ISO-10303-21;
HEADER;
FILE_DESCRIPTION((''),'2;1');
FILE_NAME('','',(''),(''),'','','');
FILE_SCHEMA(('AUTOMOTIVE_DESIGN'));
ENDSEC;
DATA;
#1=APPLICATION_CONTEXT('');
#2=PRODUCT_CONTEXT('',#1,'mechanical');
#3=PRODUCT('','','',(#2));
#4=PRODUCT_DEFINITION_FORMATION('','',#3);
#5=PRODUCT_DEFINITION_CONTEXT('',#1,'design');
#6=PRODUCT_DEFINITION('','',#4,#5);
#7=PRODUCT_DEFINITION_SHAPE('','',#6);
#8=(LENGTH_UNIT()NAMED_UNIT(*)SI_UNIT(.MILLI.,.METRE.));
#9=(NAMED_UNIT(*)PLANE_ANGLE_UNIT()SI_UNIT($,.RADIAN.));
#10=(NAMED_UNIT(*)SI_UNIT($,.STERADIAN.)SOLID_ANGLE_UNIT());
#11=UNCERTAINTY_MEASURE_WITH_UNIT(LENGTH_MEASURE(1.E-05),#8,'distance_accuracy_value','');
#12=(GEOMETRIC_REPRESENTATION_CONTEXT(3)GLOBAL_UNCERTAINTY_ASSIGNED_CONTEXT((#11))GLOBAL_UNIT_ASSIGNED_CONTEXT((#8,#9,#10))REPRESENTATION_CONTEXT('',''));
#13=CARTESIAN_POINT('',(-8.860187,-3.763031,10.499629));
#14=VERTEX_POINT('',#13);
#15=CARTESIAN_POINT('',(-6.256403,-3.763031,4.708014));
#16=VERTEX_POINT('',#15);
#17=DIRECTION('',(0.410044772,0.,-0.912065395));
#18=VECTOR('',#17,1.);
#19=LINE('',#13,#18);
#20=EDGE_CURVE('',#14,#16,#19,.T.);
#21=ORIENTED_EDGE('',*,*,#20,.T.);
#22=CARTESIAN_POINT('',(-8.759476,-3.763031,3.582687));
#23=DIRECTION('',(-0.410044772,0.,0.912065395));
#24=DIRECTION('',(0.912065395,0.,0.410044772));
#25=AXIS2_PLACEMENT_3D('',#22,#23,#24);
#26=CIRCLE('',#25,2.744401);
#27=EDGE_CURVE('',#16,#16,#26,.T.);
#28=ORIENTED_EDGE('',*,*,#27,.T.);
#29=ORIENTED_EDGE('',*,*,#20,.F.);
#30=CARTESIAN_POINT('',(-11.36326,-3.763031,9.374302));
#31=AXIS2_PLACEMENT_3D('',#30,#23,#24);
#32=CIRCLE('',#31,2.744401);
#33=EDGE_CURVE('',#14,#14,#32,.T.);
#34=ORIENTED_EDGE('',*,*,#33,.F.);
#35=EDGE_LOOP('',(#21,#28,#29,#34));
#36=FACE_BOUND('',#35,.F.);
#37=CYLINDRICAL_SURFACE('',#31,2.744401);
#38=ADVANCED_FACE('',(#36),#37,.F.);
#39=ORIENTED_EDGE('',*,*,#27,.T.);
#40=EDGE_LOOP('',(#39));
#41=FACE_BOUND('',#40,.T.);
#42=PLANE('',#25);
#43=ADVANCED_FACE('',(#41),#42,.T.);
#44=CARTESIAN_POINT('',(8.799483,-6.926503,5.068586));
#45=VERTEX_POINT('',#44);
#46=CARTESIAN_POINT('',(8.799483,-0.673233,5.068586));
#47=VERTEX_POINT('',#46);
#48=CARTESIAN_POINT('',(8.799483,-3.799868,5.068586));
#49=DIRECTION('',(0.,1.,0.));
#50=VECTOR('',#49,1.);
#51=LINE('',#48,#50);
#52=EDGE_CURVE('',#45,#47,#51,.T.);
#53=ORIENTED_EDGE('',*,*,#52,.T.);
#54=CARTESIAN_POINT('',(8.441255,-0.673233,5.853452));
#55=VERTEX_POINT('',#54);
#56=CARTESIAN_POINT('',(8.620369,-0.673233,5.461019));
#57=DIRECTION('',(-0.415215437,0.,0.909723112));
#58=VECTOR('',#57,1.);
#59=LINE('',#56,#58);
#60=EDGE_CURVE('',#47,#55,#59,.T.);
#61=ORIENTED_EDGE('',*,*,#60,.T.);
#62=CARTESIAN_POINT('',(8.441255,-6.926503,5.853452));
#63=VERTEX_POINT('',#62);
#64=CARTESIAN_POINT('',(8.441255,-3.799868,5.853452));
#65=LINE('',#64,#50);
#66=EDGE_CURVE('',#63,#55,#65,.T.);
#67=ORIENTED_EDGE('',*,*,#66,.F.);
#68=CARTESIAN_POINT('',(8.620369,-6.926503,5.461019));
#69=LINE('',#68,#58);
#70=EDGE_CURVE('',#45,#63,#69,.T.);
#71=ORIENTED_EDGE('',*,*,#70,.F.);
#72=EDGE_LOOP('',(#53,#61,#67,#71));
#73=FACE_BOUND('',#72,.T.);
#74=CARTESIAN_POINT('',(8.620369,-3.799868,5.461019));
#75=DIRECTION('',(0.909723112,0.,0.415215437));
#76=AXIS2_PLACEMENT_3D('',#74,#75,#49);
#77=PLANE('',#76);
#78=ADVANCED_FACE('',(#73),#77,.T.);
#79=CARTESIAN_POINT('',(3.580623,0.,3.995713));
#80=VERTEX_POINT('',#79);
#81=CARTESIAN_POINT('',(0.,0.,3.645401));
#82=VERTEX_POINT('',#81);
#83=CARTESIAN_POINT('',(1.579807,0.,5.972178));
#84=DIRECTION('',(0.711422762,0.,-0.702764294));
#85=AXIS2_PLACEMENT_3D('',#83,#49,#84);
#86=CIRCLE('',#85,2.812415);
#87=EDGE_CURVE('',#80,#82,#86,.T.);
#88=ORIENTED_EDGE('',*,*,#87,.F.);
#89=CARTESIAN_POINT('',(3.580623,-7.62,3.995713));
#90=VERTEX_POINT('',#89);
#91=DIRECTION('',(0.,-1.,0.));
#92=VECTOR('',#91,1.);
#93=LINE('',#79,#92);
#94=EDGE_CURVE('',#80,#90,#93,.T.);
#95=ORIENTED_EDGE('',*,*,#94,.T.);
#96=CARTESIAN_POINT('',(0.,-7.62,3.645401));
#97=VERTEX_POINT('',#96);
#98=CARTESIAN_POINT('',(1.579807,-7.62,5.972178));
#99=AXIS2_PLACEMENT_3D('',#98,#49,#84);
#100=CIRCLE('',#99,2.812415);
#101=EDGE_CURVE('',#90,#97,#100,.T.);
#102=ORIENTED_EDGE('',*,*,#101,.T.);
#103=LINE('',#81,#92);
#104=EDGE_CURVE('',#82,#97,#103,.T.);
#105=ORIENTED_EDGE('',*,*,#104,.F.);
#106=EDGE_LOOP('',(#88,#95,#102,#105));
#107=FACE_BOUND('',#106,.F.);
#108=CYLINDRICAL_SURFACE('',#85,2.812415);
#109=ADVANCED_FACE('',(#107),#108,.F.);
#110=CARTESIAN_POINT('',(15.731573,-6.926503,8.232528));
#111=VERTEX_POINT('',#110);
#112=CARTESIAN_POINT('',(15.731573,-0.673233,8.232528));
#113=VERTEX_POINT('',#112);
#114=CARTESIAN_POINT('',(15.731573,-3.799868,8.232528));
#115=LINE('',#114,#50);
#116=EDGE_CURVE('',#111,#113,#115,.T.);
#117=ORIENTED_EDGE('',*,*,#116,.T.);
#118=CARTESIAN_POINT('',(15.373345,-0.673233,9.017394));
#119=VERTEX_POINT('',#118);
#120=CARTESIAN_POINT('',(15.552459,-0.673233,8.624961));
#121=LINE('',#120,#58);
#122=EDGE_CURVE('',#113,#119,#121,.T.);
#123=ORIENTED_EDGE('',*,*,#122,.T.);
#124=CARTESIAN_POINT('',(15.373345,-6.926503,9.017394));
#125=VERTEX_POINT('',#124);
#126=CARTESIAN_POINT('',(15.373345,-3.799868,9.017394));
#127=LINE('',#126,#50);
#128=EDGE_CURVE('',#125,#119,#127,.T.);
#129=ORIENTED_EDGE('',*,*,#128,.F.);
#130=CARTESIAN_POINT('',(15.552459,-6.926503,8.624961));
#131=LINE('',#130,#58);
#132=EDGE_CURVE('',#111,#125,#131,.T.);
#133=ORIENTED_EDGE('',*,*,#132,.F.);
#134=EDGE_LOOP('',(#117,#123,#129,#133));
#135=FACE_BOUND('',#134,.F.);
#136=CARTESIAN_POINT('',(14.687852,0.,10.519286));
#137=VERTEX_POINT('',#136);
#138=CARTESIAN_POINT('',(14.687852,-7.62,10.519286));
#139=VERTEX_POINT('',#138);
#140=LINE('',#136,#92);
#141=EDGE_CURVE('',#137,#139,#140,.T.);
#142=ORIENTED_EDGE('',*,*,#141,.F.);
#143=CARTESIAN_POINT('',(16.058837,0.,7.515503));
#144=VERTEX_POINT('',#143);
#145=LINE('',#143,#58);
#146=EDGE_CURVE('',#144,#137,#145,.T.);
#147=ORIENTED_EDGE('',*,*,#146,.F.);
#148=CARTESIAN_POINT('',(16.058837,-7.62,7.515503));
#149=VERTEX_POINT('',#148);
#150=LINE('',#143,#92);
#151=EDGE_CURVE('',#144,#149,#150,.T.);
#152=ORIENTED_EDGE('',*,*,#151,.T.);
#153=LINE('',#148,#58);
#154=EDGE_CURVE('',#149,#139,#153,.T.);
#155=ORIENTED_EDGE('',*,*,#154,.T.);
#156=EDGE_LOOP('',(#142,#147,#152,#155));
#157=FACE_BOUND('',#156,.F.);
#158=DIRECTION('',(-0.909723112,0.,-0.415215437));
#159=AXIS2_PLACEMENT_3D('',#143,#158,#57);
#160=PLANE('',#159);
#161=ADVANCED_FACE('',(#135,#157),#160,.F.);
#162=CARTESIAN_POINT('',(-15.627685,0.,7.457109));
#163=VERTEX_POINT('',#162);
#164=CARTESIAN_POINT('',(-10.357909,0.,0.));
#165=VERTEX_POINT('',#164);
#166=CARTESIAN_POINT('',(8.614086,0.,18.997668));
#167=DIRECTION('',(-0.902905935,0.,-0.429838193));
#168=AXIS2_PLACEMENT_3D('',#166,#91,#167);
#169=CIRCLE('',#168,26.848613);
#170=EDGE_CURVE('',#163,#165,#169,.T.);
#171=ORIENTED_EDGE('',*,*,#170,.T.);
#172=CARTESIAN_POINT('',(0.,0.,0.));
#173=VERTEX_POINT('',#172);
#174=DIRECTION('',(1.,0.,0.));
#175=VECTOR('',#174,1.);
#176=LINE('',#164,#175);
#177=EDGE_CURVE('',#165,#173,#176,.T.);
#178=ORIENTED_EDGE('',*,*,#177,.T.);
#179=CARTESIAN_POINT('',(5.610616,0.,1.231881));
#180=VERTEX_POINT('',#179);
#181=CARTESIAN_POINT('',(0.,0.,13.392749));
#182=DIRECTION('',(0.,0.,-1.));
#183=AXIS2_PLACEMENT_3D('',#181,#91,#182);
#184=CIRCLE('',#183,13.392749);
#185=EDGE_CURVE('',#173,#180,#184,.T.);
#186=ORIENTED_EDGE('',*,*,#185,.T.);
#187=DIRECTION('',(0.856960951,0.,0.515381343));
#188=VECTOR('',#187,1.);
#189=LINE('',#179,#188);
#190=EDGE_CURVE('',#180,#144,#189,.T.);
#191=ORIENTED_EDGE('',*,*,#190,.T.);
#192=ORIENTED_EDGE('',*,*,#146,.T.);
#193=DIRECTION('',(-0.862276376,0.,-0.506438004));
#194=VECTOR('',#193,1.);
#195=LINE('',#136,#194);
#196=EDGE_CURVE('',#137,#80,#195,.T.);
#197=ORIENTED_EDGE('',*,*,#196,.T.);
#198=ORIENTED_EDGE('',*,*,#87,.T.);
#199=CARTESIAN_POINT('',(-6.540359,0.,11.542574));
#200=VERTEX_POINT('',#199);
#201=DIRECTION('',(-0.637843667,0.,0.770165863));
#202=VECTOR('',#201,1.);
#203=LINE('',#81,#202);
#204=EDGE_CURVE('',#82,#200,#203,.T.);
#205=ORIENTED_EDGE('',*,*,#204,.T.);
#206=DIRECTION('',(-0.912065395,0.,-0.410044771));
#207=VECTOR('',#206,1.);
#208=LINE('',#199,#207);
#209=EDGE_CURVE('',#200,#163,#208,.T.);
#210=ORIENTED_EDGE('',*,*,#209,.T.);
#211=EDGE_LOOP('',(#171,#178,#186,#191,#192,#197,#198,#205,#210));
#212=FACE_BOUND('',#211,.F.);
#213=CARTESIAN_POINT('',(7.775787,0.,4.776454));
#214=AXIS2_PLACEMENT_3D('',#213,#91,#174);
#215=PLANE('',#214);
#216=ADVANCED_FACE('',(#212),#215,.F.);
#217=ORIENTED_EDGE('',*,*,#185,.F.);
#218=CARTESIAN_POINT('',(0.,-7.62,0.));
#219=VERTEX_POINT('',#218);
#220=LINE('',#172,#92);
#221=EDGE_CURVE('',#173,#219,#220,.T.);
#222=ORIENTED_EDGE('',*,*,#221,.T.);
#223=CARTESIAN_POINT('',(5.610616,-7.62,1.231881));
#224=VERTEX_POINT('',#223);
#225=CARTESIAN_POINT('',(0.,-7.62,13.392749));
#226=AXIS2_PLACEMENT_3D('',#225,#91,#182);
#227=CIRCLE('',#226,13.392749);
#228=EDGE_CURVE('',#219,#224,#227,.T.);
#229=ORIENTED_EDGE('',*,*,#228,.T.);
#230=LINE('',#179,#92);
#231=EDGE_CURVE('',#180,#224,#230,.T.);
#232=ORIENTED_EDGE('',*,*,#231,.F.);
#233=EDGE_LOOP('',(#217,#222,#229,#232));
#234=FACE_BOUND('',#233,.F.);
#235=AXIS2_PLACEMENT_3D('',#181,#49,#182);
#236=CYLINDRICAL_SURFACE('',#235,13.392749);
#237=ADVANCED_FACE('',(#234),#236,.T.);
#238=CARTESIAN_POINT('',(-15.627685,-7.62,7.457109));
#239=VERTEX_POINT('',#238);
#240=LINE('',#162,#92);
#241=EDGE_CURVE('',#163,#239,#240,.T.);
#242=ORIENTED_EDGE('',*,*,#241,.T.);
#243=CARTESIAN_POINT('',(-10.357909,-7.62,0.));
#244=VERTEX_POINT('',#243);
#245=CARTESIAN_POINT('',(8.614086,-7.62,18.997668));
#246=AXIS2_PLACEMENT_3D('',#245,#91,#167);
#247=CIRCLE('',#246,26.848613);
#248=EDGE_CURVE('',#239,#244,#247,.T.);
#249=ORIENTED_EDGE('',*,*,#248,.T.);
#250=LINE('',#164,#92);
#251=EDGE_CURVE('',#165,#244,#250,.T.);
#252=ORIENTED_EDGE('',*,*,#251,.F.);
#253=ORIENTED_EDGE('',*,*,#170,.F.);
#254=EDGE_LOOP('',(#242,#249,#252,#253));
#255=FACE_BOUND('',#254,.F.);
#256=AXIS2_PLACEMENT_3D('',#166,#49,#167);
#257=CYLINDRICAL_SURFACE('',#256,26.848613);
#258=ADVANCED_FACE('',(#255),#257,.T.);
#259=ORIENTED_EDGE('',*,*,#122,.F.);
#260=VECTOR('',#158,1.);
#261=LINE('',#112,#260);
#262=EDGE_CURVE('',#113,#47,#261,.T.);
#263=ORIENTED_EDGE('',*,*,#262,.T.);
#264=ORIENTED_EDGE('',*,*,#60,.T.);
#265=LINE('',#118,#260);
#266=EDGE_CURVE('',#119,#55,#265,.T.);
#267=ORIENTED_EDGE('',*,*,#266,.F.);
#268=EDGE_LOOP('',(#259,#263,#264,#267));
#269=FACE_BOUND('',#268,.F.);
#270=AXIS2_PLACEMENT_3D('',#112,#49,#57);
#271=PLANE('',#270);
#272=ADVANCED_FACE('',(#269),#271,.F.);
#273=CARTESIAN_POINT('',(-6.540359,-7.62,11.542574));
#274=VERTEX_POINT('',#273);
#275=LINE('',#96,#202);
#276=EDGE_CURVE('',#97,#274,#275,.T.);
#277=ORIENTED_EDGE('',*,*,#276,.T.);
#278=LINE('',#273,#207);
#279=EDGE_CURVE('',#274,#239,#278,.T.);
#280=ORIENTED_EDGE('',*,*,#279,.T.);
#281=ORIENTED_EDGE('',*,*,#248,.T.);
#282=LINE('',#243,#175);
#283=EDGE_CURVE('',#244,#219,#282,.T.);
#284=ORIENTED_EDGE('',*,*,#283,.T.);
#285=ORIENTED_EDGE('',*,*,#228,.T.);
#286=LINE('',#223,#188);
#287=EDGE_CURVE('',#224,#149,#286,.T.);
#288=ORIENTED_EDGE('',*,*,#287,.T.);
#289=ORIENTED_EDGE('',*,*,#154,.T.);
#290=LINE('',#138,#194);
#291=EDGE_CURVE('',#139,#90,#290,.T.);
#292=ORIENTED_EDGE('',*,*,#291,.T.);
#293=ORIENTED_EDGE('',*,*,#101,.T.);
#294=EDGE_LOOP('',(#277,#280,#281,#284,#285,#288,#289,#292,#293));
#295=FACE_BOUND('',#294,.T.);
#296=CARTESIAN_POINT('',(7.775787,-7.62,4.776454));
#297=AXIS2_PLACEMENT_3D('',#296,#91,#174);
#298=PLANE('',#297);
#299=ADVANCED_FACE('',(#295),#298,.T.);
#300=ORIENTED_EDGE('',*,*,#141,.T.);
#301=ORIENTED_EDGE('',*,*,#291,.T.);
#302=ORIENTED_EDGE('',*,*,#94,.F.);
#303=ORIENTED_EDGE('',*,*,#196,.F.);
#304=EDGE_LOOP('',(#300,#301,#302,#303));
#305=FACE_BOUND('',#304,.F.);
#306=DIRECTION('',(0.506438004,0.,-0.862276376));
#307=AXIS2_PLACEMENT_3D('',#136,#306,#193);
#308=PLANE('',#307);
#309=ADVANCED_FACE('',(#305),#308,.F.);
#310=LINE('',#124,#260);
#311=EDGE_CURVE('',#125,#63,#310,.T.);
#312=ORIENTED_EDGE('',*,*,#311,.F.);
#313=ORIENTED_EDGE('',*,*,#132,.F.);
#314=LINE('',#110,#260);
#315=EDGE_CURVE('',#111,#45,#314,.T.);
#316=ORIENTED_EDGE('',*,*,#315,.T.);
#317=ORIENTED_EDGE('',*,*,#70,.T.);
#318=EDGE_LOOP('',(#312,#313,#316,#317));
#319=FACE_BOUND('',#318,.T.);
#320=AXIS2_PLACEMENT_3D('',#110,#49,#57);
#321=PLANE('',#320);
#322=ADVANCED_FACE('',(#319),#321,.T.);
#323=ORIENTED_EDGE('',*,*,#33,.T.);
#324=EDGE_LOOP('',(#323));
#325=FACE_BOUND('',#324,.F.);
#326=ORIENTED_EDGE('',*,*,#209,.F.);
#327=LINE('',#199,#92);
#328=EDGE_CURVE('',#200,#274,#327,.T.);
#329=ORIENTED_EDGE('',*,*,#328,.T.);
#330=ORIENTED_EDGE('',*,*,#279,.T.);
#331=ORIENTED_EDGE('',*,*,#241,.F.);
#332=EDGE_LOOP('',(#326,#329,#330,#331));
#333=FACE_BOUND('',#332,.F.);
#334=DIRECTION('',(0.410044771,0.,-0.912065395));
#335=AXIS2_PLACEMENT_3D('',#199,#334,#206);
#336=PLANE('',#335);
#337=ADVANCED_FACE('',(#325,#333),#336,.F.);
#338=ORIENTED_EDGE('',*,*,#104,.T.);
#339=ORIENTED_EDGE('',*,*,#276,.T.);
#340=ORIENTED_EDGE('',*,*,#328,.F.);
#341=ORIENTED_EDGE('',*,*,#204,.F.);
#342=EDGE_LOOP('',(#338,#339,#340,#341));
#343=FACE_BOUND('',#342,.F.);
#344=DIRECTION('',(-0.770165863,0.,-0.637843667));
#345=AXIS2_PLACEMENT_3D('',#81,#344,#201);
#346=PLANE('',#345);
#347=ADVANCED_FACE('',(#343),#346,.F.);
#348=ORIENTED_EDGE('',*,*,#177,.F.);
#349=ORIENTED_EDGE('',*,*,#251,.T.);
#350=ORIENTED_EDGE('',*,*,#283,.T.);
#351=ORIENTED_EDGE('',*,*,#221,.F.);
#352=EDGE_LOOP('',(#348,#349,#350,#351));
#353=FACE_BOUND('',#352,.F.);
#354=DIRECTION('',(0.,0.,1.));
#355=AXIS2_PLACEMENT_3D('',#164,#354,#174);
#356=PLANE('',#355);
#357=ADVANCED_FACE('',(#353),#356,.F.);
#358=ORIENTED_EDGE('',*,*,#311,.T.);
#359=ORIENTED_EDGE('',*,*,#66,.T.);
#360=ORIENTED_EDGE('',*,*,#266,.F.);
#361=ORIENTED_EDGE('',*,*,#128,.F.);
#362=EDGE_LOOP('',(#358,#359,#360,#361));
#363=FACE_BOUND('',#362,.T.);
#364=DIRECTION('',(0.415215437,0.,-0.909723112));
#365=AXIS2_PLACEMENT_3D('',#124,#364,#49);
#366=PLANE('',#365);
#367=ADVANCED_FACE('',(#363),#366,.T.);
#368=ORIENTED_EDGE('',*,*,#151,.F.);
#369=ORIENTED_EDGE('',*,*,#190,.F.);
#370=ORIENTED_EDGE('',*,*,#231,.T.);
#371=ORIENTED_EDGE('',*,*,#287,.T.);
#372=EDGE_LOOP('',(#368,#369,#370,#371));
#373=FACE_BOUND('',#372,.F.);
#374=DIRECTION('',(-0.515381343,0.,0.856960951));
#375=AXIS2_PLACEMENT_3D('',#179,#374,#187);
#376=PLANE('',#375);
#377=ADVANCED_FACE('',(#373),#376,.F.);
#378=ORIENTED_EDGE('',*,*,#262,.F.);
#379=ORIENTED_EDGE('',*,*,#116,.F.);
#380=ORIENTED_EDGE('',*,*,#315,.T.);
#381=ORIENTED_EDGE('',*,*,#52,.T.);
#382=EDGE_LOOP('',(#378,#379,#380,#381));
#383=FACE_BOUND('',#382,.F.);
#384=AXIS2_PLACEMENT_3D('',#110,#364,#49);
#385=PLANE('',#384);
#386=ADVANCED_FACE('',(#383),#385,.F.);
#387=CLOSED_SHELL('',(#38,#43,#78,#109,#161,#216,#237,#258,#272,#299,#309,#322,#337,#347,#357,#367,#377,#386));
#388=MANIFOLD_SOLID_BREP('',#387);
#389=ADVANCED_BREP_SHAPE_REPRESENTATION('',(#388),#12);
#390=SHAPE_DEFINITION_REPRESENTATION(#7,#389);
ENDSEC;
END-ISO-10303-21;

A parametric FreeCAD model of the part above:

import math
import FreeCAD as App
import Part
import Sketcher

V = App.Vector

doc = App.newDocument("Part")
params = doc.addObject("Spreadsheet::Sheet", "Params")
for row, (alias, value) in enumerate([
    ("pad1_length", "0.3 in"),
    ("pad2_length", "0.3 in"),
    ("pocket1_length", "0.25 in"),
    ("pocket2_length", "0.3 in"),
], start=1):
    params.set(f"A{row}", alias)
    params.set(f"B{row}", "=" + value)
    params.setAlias(f"B{row}", alias)

body = doc.addObject("PartDesign::Body", "Body")

# Sketch on XZ plane
sketch1 = body.newObject("Sketcher::SketchObject", "Sketch")
sketch1.AttachmentSupport = (doc.getObject("XZ_Plane"), [""])
sketch1.MapMode = "FlatFace"
sketch1.addGeometry(Part.LineSegment(V(-10.4, 0, 0), V(0, 0, 0)), False)
sketch1.addGeometry(Part.LineSegment(V(0, 0, 0), V(0, 3.6, 0)), False)
sketch1.addGeometry(Part.LineSegment(V(0, 3.6, 0), V(-6.5, 11.5, 0)), False)
sketch1.addGeometry(Part.LineSegment(V(-6.5, 11.5, 0), V(-15.6, 7.5, 0)), False)
sketch1.addGeometry(Part.ArcOfCircle(Part.Circle(V(8.6, 19, 0), V(0, 0, 1), 26.8), math.radians(-154.54), math.radians(-134.96)), False)
sketch1.addConstraint(Sketcher.Constraint("Coincident", 0, 2, 1, 1))
sketch1.addConstraint(Sketcher.Constraint("Coincident", 1, 2, 2, 1))
sketch1.addConstraint(Sketcher.Constraint("Coincident", 2, 2, 3, 1))
sketch1.addConstraint(Sketcher.Constraint("Coincident", 3, 2, 4, 1))
sketch1.addConstraint(Sketcher.Constraint("Coincident", 4, 2, 0, 1))
sketch1.addConstraint(Sketcher.Constraint("Horizontal", 0))
sketch1.addConstraint(Sketcher.Constraint("Vertical", 1))
sketch1.addConstraint(Sketcher.Constraint("Coincident", 0, 2, -1, 1))
sketch1.addConstraint(Sketcher.Constraint("DistanceY", 1, 1, 1, 2, 3.645401))
sketch1.addConstraint(Sketcher.Constraint("Radius", 4, 26.848613))
sketch1.addConstraint(Sketcher.Constraint("DistanceX", 0, 1, 0, 2, 10.357909))
sketch1.addConstraint(Sketcher.Constraint("Distance", 2, 10.253859))
sketch1.addConstraint(Sketcher.Constraint("Distance", 3, 9.963459))
sketch1.addConstraint(Sketcher.Constraint("DistanceY", -1, 1, 4, 3, 18.997668))
sketch1.addConstraint(Sketcher.Constraint("DistanceX", 2, 2, -1, 1, 6.540359))
pad1 = body.newObject("PartDesign::Pad", "Pad")
pad1.Profile = sketch1
pad1.setExpression("Length", "Params.pad1_length")

# Sketch on XZ plane
sketch2 = body.newObject("Sketcher::SketchObject", "Sketch001")
sketch2.AttachmentSupport = (doc.getObject("XZ_Plane"), [""])
sketch2.MapMode = "FlatFace"
sketch2.addGeometry(Part.LineSegment(V(0, 3.6, 0), V(0, 0, 0)), False)
sketch2.addGeometry(Part.ArcOfCircle(Part.Circle(V(0, 13.4, 0), V(0, 0, 1), 13.4), math.radians(-90), math.radians(-65)), False)
sketch2.addGeometry(Part.LineSegment(V(5.6, 1.2, 0), V(16.1, 7.5, 0)), False)
sketch2.addGeometry(Part.LineSegment(V(16.1, 7.5, 0), V(14.7, 10.5, 0)), False)
sketch2.addGeometry(Part.LineSegment(V(14.7, 10.5, 0), V(3.6, 4, 0)), False)
sketch2.addGeometry(Part.ArcOfCircle(Part.Circle(V(1.6, 6, 0), V(0, 0, 1), 2.8), math.radians(-124), math.radians(-45)), False)
sketch2.addConstraint(Sketcher.Constraint("Coincident", 0, 2, 1, 1))
sketch2.addConstraint(Sketcher.Constraint("Coincident", 1, 2, 2, 1))
sketch2.addConstraint(Sketcher.Constraint("Coincident", 2, 2, 3, 1))
sketch2.addConstraint(Sketcher.Constraint("Coincident", 3, 2, 4, 1))
sketch2.addConstraint(Sketcher.Constraint("Coincident", 4, 2, 5, 2))
sketch2.addConstraint(Sketcher.Constraint("Coincident", 5, 1, 0, 1))
sketch2.addConstraint(Sketcher.Constraint("Vertical", 0))
sketch2.addConstraint(Sketcher.Constraint("Coincident", 0, 2, -1, 1))
sketch2.addConstraint(Sketcher.Constraint("PointOnObject", 1, 3, -2))
sketch2.addConstraint(Sketcher.Constraint("Radius", 1, 13.392749))
sketch2.addConstraint(Sketcher.Constraint("DistanceY", 0, 2, 0, 1, 3.645401))
sketch2.addConstraint(Sketcher.Constraint("Radius", 5, 2.812415))
sketch2.addConstraint(Sketcher.Constraint("Distance", 2, 12.192179))
sketch2.addConstraint(Sketcher.Constraint("DistanceY", -1, 1, 1, 2, 1.231881))
sketch2.addConstraint(Sketcher.Constraint("DistanceX", -1, 1, 3, 2, 14.687852))
sketch2.addConstraint(Sketcher.Constraint("DistanceY", 5, 3, 1, 3, 7.420571))
sketch2.addConstraint(Sketcher.Constraint("DistanceX", 1, 2, 2, 2, 10.448221))
sketch2.addConstraint(Sketcher.Constraint("DistanceY", 1, 2, 4, 2, 2.763832))
sketch2.addConstraint(Sketcher.Constraint("Distance", 3, 3.301865))
pad2 = body.newObject("PartDesign::Pad", "Pad001")
pad2.Profile = sketch2
pad2.setExpression("Length", "Params.pad2_length")

# Sketch on an angled plane
sketch3 = body.newObject("Sketcher::SketchObject", "Sketch002")
sketch3.Placement = App.Placement(V(-5.416454, 0, 12.047857), App.Rotation(V(0.912065395, 0, 0.410044772), V(0, 1, 0), V(-0.410044772, 0, 0.912065395), "ZXY"))
sketch3.addGeometry(Part.Circle(V(-6.5, -3.8, 0), V(0, 0, 1), 2.7), False)
sketch3.addConstraint(Sketcher.Constraint("Diameter", 0, 5.488803))
sketch3.addConstraint(Sketcher.Constraint("DistanceY", 0, 3, -1, 1, 3.763031))
sketch3.addConstraint(Sketcher.Constraint("DistanceX", 0, 3, -1, 1, 6.520153))
pocket1 = body.newObject("PartDesign::Pocket", "Pocket")
pocket1.Profile = sketch3
pocket1.setExpression("Length", "Params.pocket1_length")

# Sketch on an angled plane
sketch4 = body.newObject("Sketcher::SketchObject", "Sketch003")
sketch4.Placement = App.Placement(V(16.129071, 0, 7.361624), App.Rotation(V(0, 1, 0), V(-0.415215437, 0, 0.909723112), V(0.909723112, 0, 0.415215437), "ZXY"))
sketch4.addGeometry(Part.LineSegment(V(-6.9, 1.8, 0), V(-6.9, 1, 0)), False)
sketch4.addGeometry(Part.LineSegment(V(-6.9, 1, 0), V(-0.7, 1, 0)), False)
sketch4.addGeometry(Part.LineSegment(V(-0.7, 1, 0), V(-0.7, 1.8, 0)), False)
sketch4.addGeometry(Part.LineSegment(V(-0.7, 1.8, 0), V(-6.9, 1.8, 0)), False)
sketch4.addConstraint(Sketcher.Constraint("Coincident", 0, 2, 1, 1))
sketch4.addConstraint(Sketcher.Constraint("Coincident", 1, 2, 2, 1))
sketch4.addConstraint(Sketcher.Constraint("Coincident", 2, 2, 3, 1))
sketch4.addConstraint(Sketcher.Constraint("Coincident", 3, 2, 0, 1))
sketch4.addConstraint(Sketcher.Constraint("Vertical", 0))
sketch4.addConstraint(Sketcher.Constraint("Horizontal", 1))
sketch4.addConstraint(Sketcher.Constraint("Vertical", 2))
sketch4.addConstraint(Sketcher.Constraint("Horizontal", 3))
sketch4.addConstraint(Sketcher.Constraint("DistanceX", 1, 1, 1, 2, 6.25327))
sketch4.addConstraint(Sketcher.Constraint("DistanceY", 0, 2, 0, 1, 0.862753))
sketch4.addConstraint(Sketcher.Constraint("DistanceY", -1, 1, 0, 2, 0.957329))
sketch4.addConstraint(Sketcher.Constraint("DistanceX", 0, 2, -1, 1, 6.926503))
pocket2 = body.newObject("PartDesign::Pocket", "Pocket001")
pocket2.Profile = sketch4
pocket2.setExpression("Length", "Params.pocket2_length")

doc.recompute()
